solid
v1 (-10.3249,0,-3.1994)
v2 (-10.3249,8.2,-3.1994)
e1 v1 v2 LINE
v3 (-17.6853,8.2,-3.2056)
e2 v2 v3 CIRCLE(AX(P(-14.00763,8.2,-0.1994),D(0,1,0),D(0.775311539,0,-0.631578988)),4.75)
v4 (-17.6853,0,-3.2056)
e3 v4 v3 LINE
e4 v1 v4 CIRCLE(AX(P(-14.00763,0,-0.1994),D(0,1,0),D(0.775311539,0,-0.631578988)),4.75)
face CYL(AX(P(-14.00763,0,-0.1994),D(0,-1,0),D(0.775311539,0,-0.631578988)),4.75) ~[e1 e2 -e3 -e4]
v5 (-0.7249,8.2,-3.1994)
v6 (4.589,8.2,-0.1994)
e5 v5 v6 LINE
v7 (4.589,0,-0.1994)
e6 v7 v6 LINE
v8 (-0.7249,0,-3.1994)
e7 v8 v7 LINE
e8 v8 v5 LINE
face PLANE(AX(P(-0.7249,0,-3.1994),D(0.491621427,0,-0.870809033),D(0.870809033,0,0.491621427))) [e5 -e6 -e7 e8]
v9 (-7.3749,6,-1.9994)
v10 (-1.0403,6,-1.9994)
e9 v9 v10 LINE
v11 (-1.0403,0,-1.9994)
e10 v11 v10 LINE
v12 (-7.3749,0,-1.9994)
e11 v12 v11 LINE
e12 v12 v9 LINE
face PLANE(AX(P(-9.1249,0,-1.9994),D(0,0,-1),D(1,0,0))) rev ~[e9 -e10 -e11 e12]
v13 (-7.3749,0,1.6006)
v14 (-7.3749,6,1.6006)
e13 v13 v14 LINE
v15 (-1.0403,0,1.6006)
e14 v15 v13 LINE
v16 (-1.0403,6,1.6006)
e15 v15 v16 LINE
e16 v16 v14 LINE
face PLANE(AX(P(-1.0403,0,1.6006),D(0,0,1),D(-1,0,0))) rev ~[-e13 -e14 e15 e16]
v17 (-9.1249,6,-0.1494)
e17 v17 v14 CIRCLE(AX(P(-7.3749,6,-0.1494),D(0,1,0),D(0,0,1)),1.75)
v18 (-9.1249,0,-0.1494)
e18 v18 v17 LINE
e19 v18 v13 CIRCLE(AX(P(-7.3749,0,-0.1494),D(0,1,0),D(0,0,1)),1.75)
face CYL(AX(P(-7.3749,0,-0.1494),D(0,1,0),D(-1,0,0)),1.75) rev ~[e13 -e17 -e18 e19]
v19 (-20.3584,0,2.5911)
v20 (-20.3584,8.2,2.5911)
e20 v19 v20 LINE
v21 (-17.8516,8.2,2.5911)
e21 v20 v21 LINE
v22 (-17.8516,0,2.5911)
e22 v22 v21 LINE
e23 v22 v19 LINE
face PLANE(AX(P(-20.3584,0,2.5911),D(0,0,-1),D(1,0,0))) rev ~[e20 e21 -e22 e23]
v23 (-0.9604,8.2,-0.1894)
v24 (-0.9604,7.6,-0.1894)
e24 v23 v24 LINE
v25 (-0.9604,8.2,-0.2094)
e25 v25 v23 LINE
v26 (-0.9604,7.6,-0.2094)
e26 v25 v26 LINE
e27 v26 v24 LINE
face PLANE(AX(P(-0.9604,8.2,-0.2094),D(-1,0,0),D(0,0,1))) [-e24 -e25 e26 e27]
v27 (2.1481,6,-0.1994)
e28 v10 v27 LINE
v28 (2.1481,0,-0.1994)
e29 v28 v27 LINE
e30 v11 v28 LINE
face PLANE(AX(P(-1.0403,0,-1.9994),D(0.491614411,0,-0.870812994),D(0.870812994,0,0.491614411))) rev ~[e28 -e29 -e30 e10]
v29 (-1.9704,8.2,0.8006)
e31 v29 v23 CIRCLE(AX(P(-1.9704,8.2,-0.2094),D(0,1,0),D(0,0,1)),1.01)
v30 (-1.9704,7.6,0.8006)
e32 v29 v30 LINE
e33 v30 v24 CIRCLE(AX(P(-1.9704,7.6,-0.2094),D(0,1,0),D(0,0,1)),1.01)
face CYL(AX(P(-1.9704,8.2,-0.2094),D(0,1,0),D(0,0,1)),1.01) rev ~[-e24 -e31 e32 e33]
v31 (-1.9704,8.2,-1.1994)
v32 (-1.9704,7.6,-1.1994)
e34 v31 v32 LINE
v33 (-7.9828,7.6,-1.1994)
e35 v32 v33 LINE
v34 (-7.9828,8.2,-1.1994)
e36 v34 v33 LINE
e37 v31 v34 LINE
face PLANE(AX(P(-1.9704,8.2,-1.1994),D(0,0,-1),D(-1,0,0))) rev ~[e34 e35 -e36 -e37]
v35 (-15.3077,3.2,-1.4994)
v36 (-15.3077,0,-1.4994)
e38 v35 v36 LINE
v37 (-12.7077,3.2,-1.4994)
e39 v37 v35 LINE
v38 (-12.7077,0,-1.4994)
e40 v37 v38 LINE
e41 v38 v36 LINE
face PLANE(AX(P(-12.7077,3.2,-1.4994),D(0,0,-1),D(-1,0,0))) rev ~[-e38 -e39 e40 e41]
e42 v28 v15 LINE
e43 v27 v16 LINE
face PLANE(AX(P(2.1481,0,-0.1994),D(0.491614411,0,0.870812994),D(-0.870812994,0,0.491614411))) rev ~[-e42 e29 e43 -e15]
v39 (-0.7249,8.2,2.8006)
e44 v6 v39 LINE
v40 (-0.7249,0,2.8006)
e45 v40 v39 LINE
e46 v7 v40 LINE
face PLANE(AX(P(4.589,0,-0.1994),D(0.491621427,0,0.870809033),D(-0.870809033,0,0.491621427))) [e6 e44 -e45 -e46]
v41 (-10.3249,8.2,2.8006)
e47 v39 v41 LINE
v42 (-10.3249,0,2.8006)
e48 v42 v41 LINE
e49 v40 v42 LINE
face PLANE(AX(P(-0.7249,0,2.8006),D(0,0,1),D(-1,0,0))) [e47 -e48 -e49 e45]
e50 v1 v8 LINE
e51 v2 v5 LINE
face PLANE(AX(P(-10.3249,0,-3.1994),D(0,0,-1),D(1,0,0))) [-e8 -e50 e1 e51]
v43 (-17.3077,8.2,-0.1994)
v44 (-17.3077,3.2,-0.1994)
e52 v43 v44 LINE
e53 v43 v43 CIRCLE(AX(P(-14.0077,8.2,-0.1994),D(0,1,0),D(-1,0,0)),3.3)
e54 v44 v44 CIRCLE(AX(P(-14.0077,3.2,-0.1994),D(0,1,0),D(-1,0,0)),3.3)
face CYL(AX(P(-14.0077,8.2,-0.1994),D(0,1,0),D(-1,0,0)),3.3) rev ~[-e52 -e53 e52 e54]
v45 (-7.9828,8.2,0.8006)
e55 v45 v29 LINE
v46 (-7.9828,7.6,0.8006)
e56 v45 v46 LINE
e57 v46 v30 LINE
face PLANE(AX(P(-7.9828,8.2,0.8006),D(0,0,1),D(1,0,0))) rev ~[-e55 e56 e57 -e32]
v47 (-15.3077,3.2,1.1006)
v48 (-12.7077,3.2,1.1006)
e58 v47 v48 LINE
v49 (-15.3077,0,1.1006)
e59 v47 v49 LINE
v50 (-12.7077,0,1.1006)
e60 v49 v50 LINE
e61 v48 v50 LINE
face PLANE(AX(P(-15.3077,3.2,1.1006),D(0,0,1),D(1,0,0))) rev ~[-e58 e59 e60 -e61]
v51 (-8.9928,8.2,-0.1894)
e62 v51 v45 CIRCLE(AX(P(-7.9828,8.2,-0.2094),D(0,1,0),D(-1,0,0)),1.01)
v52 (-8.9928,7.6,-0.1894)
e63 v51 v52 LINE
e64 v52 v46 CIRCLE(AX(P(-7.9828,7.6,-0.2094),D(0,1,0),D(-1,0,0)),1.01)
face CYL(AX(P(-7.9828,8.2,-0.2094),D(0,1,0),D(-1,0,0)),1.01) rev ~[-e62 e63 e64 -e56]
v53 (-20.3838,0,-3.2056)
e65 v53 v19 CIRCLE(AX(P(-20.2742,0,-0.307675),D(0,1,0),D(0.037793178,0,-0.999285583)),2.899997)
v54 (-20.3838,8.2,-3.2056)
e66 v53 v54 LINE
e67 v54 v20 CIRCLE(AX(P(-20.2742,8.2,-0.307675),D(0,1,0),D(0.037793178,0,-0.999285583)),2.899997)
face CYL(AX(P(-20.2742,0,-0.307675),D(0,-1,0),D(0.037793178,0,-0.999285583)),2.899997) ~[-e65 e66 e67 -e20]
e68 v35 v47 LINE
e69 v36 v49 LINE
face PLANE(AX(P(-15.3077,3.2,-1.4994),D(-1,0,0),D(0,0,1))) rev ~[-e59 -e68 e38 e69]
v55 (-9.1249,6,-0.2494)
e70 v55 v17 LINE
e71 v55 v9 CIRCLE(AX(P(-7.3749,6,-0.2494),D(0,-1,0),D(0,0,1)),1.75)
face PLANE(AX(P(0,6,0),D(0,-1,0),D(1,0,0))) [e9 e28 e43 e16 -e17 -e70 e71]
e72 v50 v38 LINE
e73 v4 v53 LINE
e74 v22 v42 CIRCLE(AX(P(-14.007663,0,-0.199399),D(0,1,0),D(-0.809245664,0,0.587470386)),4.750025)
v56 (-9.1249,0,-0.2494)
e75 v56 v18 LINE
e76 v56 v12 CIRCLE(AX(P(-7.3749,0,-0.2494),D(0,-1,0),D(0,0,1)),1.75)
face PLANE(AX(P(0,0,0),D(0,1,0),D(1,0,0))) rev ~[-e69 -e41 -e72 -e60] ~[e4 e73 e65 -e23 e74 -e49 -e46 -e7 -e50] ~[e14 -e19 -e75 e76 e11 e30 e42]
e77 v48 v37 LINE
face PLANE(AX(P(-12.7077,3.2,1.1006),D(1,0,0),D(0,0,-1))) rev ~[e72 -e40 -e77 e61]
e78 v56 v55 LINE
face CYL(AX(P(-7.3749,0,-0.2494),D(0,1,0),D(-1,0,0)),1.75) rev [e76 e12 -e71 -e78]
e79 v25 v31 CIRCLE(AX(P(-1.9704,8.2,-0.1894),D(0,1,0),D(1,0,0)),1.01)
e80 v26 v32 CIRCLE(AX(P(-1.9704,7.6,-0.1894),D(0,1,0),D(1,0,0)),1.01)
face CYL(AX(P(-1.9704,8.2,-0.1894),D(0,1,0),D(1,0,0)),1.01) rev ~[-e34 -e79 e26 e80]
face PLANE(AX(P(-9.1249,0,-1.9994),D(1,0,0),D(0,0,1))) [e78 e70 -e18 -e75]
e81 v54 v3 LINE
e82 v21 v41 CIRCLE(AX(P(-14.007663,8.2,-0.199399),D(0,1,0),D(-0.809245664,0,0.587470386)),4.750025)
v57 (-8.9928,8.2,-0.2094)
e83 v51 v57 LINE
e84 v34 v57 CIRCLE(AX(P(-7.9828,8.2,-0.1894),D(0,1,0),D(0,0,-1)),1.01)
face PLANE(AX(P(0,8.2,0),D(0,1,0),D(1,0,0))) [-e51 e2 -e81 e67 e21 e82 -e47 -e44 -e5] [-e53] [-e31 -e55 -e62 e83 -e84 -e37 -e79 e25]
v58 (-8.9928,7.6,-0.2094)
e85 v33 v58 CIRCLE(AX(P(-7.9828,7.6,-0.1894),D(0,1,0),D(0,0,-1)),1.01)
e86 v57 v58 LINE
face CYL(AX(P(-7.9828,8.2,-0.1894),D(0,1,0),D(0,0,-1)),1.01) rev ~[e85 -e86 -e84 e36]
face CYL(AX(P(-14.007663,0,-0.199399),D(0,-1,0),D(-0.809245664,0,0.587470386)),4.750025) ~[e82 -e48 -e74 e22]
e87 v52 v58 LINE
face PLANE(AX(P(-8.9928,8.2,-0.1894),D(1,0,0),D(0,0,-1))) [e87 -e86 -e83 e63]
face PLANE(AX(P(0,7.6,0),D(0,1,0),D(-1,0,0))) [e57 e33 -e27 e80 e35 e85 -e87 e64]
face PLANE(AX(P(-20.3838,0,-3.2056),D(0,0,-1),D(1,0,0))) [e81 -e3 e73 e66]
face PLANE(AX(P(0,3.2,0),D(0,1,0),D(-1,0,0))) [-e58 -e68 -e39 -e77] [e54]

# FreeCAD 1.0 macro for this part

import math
import FreeCAD as App
import Part
import Sketcher
from FreeCAD import Vector
Q = App.Units.Quantity


def edges_at(feature, points):
    """Names of the edges that pass closest to the given points."""
    edges = feature.Shape.Edges
    near = lambda p: min(range(len(edges)), key=lambda i: edges[i].distToShape(Part.Vertex(*p))[0])
    return sorted({f"Edge{near(p) + 1}" for p in points})


def add_polygon(sketch, points):
    """Adds a closed chain of lines whose ends are joined by coincident constraints."""
    first, n = sketch.GeometryCount, len(points)
    for a, b in zip(points, points[1:] + points[:1]):
        sketch.addGeometry(Part.LineSegment(App.Vector(*a, 0), App.Vector(*b, 0)), False)
    for i in range(n):
        sketch.addConstraint(Sketcher.Constraint("Coincident", first + i, 2, first + (i + 1) % n, 1))

doc = App.newDocument("Part")
body = doc.addObject("PartDesign::Body", "Body")

sketch1 = body.newObject("Sketcher::SketchObject", "Sketch")
sketch1.AttachmentSupport = (doc.getObject("XZ_Plane"), [""])
sketch1.MapMode = "FlatFace"
sketch1.addGeometry([
    Part.LineSegment(Vector(-17.7, -3.2, 0), Vector(-20.4, -3.2, 0)),
    Part.ArcOfCircle(Part.Circle(Vector(-20.3, -0.3, 0), Vector(0, 0, 1), 2.9), math.radians(92), math.radians(268)),
    Part.LineSegment(Vector(-20.4, 2.6, 0), Vector(-17.9, 2.6, 0)),
    Part.ArcOfCircle(Part.Circle(Vector(-14, -0.2, 0), Vector(0, 0, 1), 4.8), math.radians(39), math.radians(144)),
    Part.LineSegment(Vector(-10.3, 2.8, 0), Vector(-0.7, 2.8, 0)),
    Part.LineSegment(Vector(-0.7, 2.8, 0), Vector(4.6, -0.2, 0)),
    Part.LineSegment(Vector(4.6, -0.2, 0), Vector(-0.7, -3.2, 0)),
    Part.LineSegment(Vector(-0.7, -3.2, 0), Vector(-10.3, -3.2, 0)),
    Part.ArcOfCircle(Part.Circle(Vector(-14, -0.2, 0), Vector(0, 0, 1), 4.7), math.radians(-141), math.radians(-39)),
], False)
sketch1.addConstraint([
    Sketcher.Constraint("Coincident", 0, 2, 1, 2),
    Sketcher.Constraint("Coincident", 1, 1, 2, 1),
    Sketcher.Constraint("Coincident", 2, 2, 3, 2),
    Sketcher.Constraint("Coincident", 3, 1, 4, 1),
    Sketcher.Constraint("Coincident", 4, 2, 5, 1),
    Sketcher.Constraint("Coincident", 5, 2, 6, 1),
    Sketcher.Constraint("Coincident", 6, 2, 7, 1),
    Sketcher.Constraint("Coincident", 7, 2, 8, 2),
    Sketcher.Constraint("Coincident", 8, 1, 0, 1),
    Sketcher.Constraint("Horizontal", 0),
    Sketcher.Constraint("Horizontal", 2),
    Sketcher.Constraint("Horizontal", 4),
    Sketcher.Constraint("Horizontal", 7),
    Sketcher.Constraint("Coincident", 8, 3, 3, 3),
    Sketcher.Constraint("Equal", 3, 8),
    Sketcher.Constraint("Horizontal", 8, 3, 5, 2),
    Sketcher.Constraint("Vertical", 4, 2, 6, 2),
    Sketcher.Constraint("Vertical", 3, 1, 7, 2),
    Sketcher.Constraint("Radius", 1, Q("2.9 mm")),
    Sketcher.Constraint("Radius", 3, Q("4.75 mm")),
    Sketcher.Constraint("DistanceX", 4, 1, 4, 2, Q("9.6 mm")),
    Sketcher.Constraint("DistanceY", 6, 2, 4, 2, Q("6 mm")),
    Sketcher.Constraint("DistanceX", 0, 2, 0, 1, Q("2.6985 mm")),
    Sketcher.Constraint("DistanceX", 2, 1, 2, 2, Q("2.5068 mm")),
    Sketcher.Constraint("DistanceY", -1, 1, 1, 1, Q("2.591 mm")),
    Sketcher.Constraint("DistanceX", 3, 1, -1, 1, Q("10.325 mm")),
    Sketcher.Constraint("DistanceX", -1, 1, 5, 2, Q("4.589 mm")),
    Sketcher.Constraint("DistanceY", 0, 2, 1, 3, Q("2.898 mm")),
    Sketcher.Constraint("DistanceX", 0, 2, 3, 3, Q("6.376 mm")),
])
pad1 = body.newObject("PartDesign::Pad", "Pad")
pad1.Profile = sketch1
pad1.Length = 8.2
pad1.Reversed = True

sketch2 = body.newObject("Sketcher::SketchObject", "Sketch001")
sketch2.AttachmentSupport = (doc.getObject("XZ_Plane"), [""])
sketch2.MapMode = "FlatFace"
sketch2.AttachmentOffset = App.Placement(Vector(0, 0, -8.2), App.Rotation())
sketch2.addGeometry(Part.Circle(Vector(-14, -0.2, 0), Vector(0, 0, 1), 3.3), False)
sketch2.addConstraint([
    Sketcher.Constraint("Diameter", 0, Q("6.6 mm")),
    Sketcher.Constraint("DistanceX", 0, 3, -1, 1, Q("14.0077 mm")),
    Sketcher.Constraint("DistanceY", 0, 3, -1, 1, Q("0.1994 mm")),
])
pocket1 = body.newObject("PartDesign::Pocket", "Pocket")
pocket1.Profile = sketch2
pocket1.Length = 5
pocket1.Reversed = True

sketch3 = body.newObject("Sketcher::SketchObject", "Sketch002")
sketch3.AttachmentSupport = (doc.getObject("XZ_Plane"), [""])
sketch3.MapMode = "FlatFace"
sketch3.AttachmentOffset = App.Placement(Vector(0, 0, -3.2), App.Rotation())
add_polygon(sketch3, [(-12.7, 1.1), (-12.7, -1.5), (-15.3, -1.5), (-15.3, 1.1)])
sketch3.addConstraint([
    Sketcher.Constraint("Vertical", 0),
    Sketcher.Constraint("Horizontal", 1),
    Sketcher.Constraint("Vertical", 2),
    Sketcher.Constraint("Horizontal", 3),
    Sketcher.Constraint("Equal", 3, 0),
    Sketcher.Constraint("DistanceX", 1, 2, 1, 1, Q("2.6 mm")),
    Sketcher.Constraint("DistanceX", 0, 2, -1, 1, Q("12.7077 mm")),
    Sketcher.Constraint("DistanceY", 0, 2, -1, 1, Q("1.4994 mm")),
])
pocket2 = body.newObject("PartDesign::Pocket", "Pocket001")
pocket2.Profile = sketch3
pocket2.Length = 13
pocket2.Reversed = True

sketch4 = body.newObject("Sketcher::SketchObject", "Sketch003")
sketch4.AttachmentSupport = (doc.getObject("XZ_Plane"), [""])
sketch4.MapMode = "FlatFace"
sketch4.AttachmentOffset = App.Placement(Vector(0, 0, -8.2), App.Rotation())
sketch4.addGeometry([
    Part.ArcOfCircle(Part.Circle(Vector(-7.983, -0.209, 0), Vector(0, 0, 1), 1.01), math.radians(90), math.radians(179)),
    Part.LineSegment(Vector(-7.983, 0.801, 0), Vector(-1.97, 0.801, 0)),
    Part.ArcOfCircle(Part.Circle(Vector(-1.97, -0.209, 0), Vector(0, 0, 1), 1.01), math.radians(1), math.radians(90)),
    Part.LineSegment(Vector(-0.96, -0.189, 0), Vector(-0.96, -0.209, 0)),
    Part.ArcOfCircle(Part.Circle(Vector(-1.97, -0.189, 0), Vector(0, 0, 1), 1.01), math.radians(-90), math.radians(-1)),
    Part.LineSegment(Vector(-1.97, -1.199, 0), Vector(-7.983, -1.199, 0)),
    Part.ArcOfCircle(Part.Circle(Vector(-7.983, -0.189, 0), Vector(0, 0, 1), 1.01), math.radians(-179), math.radians(-90)),
    Part.LineSegment(Vector(-8.993, -0.209, 0), Vector(-8.993, -0.189, 0)),
], False)
sketch4.addConstraint([
    Sketcher.Constraint("Tangent", 0, 1, 1, 1),
    Sketcher.Constraint("Tangent", 1, 2, 2, 2),
    Sketcher.Constraint("Coincident", 2, 1, 3, 1),
    Sketcher.Constraint("Coincident", 3, 2, 4, 2),
    Sketcher.Constraint("Tangent", 4, 1, 5, 1),
    Sketcher.Constraint("Tangent", 5, 2, 6, 2),
    Sketcher.Constraint("Coincident", 6, 1, 7, 1),
    Sketcher.Constraint("Coincident", 7, 2, 0, 2),
    Sketcher.Constraint("Horizontal", 1),
    Sketcher.Constraint("Vertical", 3),
    Sketcher.Constraint("Horizontal", 5),
    Sketcher.Constraint("Vertical", 7),
    Sketcher.Constraint("Equal", 0, 2),
    Sketcher.Constraint("Equal", 2, 4),
    Sketcher.Constraint("Equal", 4, 6),
    Sketcher.Constraint("Horizontal", 6, 3, 2, 1),
    Sketcher.Constraint("Horizontal", 2, 3, 3, 2),
    Sketcher.Constraint("Horizontal", 3, 2, 6, 1),
    Sketcher.Constraint("Horizontal", 2, 1, 7, 2),
    Sketcher.Constraint("Radius", 0, Q("1.01 mm")),
    Sketcher.Constraint("DistanceY", 4, 1, 1, 2, Q("2 mm")),
    Sketcher.Constraint("DistanceX", 1, 1, 1, 2, Q("6.0124 mm")),
    Sketcher.Constraint("DistanceX", 0, 3, -1, 1, Q("7.9828 mm")),
    Sketcher.Constraint("DistanceY", 0, 3, -1, 1, Q("0.2094 mm")),
])
pocket3 = body.newObject("PartDesign::Pocket", "Pocket002")
pocket3.Profile = sketch4
pocket3.Length = 0.6
pocket3.Reversed = True

sketch5 = body.newObject("Sketcher::SketchObject", "Sketch004")
sketch5.AttachmentSupport = (doc.getObject("XZ_Plane"), [""])
sketch5.MapMode = "FlatFace"
add_polygon(sketch5, [(-9.1, -2), (-1, -2), (2.1, -0.2), (-1, 1.6), (-9.1, 1.6)])
sketch5.addConstraint([
    Sketcher.Constraint("Horizontal", 0),
    Sketcher.Constraint("Horizontal", 3),
    Sketcher.Constraint("Vertical", 4),
    Sketcher.Constraint("Vertical", 0, 2, 2, 2),
    Sketcher.Constraint("Equal", 1, 2),
    Sketcher.Constraint("DistanceY", 4, 2, 4, 1, Q("3.6 mm")),
    Sketcher.Constraint("DistanceX", 0, 1, 0, 2, Q("8.0846 mm")),
    Sketcher.Constraint("DistanceX", -1, 1, 1, 2, Q("2.148 mm")),
    Sketcher.Constraint("DistanceX", 3, 2, -1, 1, Q("9.125 mm")),
    Sketcher.Constraint("DistanceY", 0, 2, -1, 1, Q("1.9994 mm")),
])
pocket4 = body.newObject("PartDesign::Pocket", "Pocket003")
pocket4.Profile = sketch5
pocket4.Length = 6
doc.recompute()

fillet = body.newObject("PartDesign::Fillet", "Fillet")
fillet.Base = (pocket4, edges_at(pocket4, [(-9.125, 3, 1.601), (-9.125, 3, -1.999)]))
fillet.Radius = 1.75

doc.recompute()
